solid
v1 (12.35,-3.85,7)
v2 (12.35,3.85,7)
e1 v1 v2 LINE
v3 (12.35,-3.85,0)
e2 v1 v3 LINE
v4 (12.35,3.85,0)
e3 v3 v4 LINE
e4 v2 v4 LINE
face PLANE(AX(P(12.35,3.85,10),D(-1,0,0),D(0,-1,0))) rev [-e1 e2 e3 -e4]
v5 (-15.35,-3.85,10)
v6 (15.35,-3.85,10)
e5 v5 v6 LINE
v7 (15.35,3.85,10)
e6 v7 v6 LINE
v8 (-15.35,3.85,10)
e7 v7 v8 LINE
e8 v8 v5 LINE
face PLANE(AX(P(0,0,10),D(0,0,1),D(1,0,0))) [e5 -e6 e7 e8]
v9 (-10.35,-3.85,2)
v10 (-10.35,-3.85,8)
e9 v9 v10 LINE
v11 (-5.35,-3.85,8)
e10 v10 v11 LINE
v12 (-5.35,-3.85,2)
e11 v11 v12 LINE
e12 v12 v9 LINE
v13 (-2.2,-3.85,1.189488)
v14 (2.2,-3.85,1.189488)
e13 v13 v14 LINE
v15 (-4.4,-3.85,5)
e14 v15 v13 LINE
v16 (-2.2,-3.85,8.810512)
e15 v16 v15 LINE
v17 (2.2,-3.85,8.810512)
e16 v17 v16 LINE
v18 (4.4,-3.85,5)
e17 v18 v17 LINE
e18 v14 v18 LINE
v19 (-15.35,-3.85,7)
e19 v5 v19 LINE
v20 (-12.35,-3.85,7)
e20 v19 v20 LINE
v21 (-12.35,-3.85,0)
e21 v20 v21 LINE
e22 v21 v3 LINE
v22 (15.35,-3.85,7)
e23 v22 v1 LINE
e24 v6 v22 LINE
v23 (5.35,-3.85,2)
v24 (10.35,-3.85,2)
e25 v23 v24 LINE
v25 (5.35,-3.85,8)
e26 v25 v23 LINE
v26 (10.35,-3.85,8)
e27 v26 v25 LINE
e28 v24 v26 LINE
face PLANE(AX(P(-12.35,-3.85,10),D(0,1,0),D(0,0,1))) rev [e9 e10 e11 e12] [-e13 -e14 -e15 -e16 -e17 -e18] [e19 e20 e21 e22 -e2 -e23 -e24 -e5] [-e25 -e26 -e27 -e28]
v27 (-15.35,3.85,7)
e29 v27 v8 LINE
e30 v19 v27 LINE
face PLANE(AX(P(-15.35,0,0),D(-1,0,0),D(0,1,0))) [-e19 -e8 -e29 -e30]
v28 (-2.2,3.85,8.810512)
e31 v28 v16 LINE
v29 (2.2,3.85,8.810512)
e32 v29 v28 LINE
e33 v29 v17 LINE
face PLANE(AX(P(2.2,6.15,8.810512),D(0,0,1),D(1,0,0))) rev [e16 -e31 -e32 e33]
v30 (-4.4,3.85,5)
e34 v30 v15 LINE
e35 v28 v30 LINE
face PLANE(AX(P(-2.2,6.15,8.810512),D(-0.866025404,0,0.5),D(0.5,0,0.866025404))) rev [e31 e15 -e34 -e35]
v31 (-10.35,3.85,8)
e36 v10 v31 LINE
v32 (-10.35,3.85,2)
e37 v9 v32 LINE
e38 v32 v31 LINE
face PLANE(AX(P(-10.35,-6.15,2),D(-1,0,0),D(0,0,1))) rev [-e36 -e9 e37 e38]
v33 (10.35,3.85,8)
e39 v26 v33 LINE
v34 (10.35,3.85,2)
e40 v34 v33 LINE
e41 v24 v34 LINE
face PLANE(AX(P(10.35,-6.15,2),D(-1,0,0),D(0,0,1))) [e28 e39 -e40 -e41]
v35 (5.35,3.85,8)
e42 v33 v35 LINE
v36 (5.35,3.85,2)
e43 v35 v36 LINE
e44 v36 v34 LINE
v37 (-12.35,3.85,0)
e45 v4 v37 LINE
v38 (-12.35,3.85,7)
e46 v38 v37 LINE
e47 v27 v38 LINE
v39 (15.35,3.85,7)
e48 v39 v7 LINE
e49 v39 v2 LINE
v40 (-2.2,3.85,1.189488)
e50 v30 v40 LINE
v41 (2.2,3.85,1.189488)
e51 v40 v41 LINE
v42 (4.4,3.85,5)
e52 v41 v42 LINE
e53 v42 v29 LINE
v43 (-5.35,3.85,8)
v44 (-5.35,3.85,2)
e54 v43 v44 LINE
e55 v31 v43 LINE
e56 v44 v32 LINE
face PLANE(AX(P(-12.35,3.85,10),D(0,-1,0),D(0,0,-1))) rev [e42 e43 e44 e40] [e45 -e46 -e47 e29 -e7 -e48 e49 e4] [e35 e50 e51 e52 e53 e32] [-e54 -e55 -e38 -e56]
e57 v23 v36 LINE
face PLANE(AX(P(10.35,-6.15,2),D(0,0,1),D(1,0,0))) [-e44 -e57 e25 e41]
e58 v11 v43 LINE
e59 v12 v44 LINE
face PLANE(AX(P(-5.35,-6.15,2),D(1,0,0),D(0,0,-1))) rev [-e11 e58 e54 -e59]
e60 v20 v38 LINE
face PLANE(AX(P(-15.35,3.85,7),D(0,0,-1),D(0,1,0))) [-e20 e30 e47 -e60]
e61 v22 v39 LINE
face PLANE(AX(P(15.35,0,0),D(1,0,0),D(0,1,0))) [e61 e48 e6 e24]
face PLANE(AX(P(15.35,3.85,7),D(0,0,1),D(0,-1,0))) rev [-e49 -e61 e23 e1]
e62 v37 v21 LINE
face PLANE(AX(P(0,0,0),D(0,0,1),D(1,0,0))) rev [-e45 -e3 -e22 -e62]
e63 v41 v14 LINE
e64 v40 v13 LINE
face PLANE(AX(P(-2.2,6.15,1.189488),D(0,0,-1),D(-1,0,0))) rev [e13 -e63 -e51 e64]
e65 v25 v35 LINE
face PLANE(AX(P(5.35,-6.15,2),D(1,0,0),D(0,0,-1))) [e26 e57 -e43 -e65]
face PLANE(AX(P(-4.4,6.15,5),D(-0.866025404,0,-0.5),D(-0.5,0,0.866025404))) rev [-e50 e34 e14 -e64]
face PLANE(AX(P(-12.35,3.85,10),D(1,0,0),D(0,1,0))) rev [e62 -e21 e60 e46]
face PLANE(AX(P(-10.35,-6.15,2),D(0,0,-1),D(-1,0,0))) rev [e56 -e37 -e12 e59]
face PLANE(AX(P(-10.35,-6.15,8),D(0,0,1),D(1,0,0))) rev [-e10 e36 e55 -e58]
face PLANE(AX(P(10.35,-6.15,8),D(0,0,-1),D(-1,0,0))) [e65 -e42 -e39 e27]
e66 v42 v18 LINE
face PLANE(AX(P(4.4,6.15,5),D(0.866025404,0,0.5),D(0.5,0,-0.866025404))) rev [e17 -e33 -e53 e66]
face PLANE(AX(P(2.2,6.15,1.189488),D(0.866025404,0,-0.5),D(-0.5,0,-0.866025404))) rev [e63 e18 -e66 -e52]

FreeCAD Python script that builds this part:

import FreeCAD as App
import Part
import Sketcher
Q = App.Units.Quantity


def add_polygon(sketch, points):
    """Adds a closed chain of lines whose ends are joined by coincident constraints."""
    first, n = sketch.GeometryCount, len(points)
    for a, b in zip(points, points[1:] + points[:1]):
        sketch.addGeometry(Part.LineSegment(App.Vector(*a, 0), App.Vector(*b, 0)), False)
    for i in range(n):
        sketch.addConstraint(Sketcher.Constraint("Coincident", first + i, 2, first + (i + 1) % n, 1))

doc = App.newDocument("Part")
params = doc.addObject("Spreadsheet::Sheet", "Params")
for row, (alias, value) in enumerate([
    ("sketch1_width", "24.7 mm"),
    ("sketch1_height", "7.7 mm"),
    ("pad1_length", "10 mm"),
    ("sketch2_width", "4.4 mm"),
    ("sketch2_length", "4.4 mm"),
    ("pocket1_length", "10 mm"),
    ("sketch3_width", "5 mm"),
    ("sketch3_height", "6 mm"),
    ("pocket2_length", "10 mm"),
    ("sketch4_height", "3 mm"),
    ("sketch4_width", "7.7 mm"),
    ("pad2_length", "3 mm"),
], start=1):
    params.set(f"A{row}", alias)
    params.set(f"B{row}", "=" + value)
    params.setAlias(f"B{row}", alias)

body = doc.addObject("PartDesign::Body", "Body")

# Sketch on XY plane
sketch1 = body.newObject("Sketcher::SketchObject", "Sketch")
sketch1.AttachmentSupport = (doc.getObject("XY_Plane"), [""])
sketch1.MapMode = "FlatFace"
add_polygon(sketch1, [(-12, 4), (-12, -4), (12, -4), (12, 4)])  # lines 0-3
sketch1.addConstraint([
    Sketcher.Constraint("Vertical", 0),
    Sketcher.Constraint("Horizontal", 1),
    Sketcher.Constraint("Vertical", 2),
    Sketcher.Constraint("Horizontal", 3),
    Sketcher.Constraint("Symmetric", 0, 2, 2, 2, -1, 1),
    Sketcher.Constraint("DistanceX", 1, 1, 1, 2, Q("24.7 mm")),
    Sketcher.Constraint("DistanceY", 0, 2, 0, 1, Q("7.7 mm")),
])
sketch1.setExpression("Constraints[9]", "Params.sketch1_width")
sketch1.setExpression("Constraints[10]", "Params.sketch1_height")
pad1 = body.newObject("PartDesign::Pad", "Pad")
pad1.Profile = sketch1
pad1.setExpression("Length", "Params.pad1_length")

# Sketch on XZ plane
sketch2 = body.newObject("Sketcher::SketchObject", "Sketch001")
sketch2.AttachmentSupport = (doc.getObject("XZ_Plane"), [""])
sketch2.MapMode = "FlatFace"
sketch2.AttachmentOffset = App.Placement(App.Vector(0, 0, 3.85), App.Rotation())
add_polygon(sketch2, [(4.4, 5), (2.2, 8.8), (-2.2, 8.8), (-4.4, 5), (-2.2, 1.2), (2.2, 1.2)])  # lines 0-5
sketch2.addConstraint([
    Sketcher.Constraint("Horizontal", 1),
    Sketcher.Constraint("Horizontal", 4),
    Sketcher.Constraint("Symmetric", 2, 2, 5, 2, -2),
    Sketcher.Constraint("Parallel", 0, 3),
    Sketcher.Constraint("Parallel", 2, 5),
    Sketcher.Constraint("Vertical", 1, 2, 3, 2),
    Sketcher.Constraint("Vertical", 0, 2, 4, 2),
    Sketcher.Constraint("Angle", 0, Q("120 deg")),
    Sketcher.Constraint("DistanceX", 1, 2, 1, 1, Q("4.4 mm")),
    Sketcher.Constraint("DistanceY", -1, 1, 2, 2, Q("5 mm")),
    Sketcher.Constraint("Distance", 0, Q("4.4 mm")),
])
sketch2.setExpression("Constraints[14]", "Params.sketch2_width")
sketch2.setExpression("Constraints[16]", "Params.sketch2_length")
pocket1 = body.newObject("PartDesign::Pocket", "Pocket")
pocket1.Profile = sketch2
pocket1.setExpression("Length", "Params.pocket1_length")

# Sketch on XZ plane
sketch3 = body.newObject("Sketcher::SketchObject", "Sketch002")
sketch3.AttachmentSupport = (doc.getObject("XZ_Plane"), [""])
sketch3.MapMode = "FlatFace"
sketch3.AttachmentOffset = App.Placement(App.Vector(0, 0, -3.85), App.Rotation())
add_polygon(sketch3, [(-10, 2), (-10, 8), (-5, 8), (-5, 2)])  # lines 0-3
sketch3.addConstraint([
    Sketcher.Constraint("Vertical", 0),
    Sketcher.Constraint("Horizontal", 1),
    Sketcher.Constraint("Vertical", 2),
    Sketcher.Constraint("Horizontal", 3),
    Sketcher.Constraint("DistanceX", 1, 1, 1, 2, Q("5 mm")),
    Sketcher.Constraint("DistanceY", 0, 1, 0, 2, Q("6 mm")),
    Sketcher.Constraint("DistanceY", -1, 1, 0, 2, Q("8 mm")),
    Sketcher.Constraint("DistanceX", 0, 2, -1, 1, Q("10.35 mm")),
])
sketch3.setExpression("Constraints[8]", "Params.sketch3_width")
sketch3.setExpression("Constraints[9]", "Params.sketch3_height")
pocket2 = body.newObject("PartDesign::Pocket", "Pocket001")
pocket2.Profile = sketch3
pocket2.setExpression("Length", "Params.pocket2_length")
pocket2.Reversed = True
doc.recompute()

mirrored = body.newObject("PartDesign::Mirrored", "Mirrored")
mirrored.Originals = [pocket2]
mirrored.MirrorPlane = (doc.getObject("YZ_Plane"), [""])
body.Tip = mirrored

# Sketch on YZ plane
sketch4 = body.newObject("Sketcher::SketchObject", "Sketch003")
sketch4.AttachmentSupport = (doc.getObject("YZ_Plane"), [""])
sketch4.MapMode = "FlatFace"
sketch4.AttachmentOffset = App.Placement(App.Vector(0, 0, 12.35), App.Rotation())
add_polygon(sketch4, [(3.9, 10), (-3.9, 10), (-3.9, 7), (3.9, 7)])  # lines 0-3
sketch4.addConstraint([
    Sketcher.Constraint("Horizontal", 0),
    Sketcher.Constraint("Vertical", 1),
    Sketcher.Constraint("Horizontal", 2),
    Sketcher.Constraint("Vertical", 3),
    Sketcher.Constraint("DistanceY", 1, 2, 1, 1, Q("3 mm")),
    Sketcher.Constraint("DistanceX", 0, 2, 0, 1, Q("7.7 mm")),
    Sketcher.Constraint("DistanceY", -1, 1, 0, 2, Q("10 mm")),
    Sketcher.Constraint("DistanceX", 0, 2, -1, 1, Q("3.85 mm")),
])
sketch4.setExpression("Constraints[8]", "Params.sketch4_height")
sketch4.setExpression("Constraints[9]", "Params.sketch4_width")
pad2 = body.newObject("PartDesign::Pad", "Pad001")
pad2.Profile = sketch4
pad2.setExpression("Length", "Params.pad2_length")
doc.recompute()

mirrored2 = body.newObject("PartDesign::Mirrored", "Mirrored001")
mirrored2.Originals = [pad2]
mirrored2.MirrorPlane = (doc.getObject("YZ_Plane"), [""])
body.Tip = mirrored2

doc.recompute()
